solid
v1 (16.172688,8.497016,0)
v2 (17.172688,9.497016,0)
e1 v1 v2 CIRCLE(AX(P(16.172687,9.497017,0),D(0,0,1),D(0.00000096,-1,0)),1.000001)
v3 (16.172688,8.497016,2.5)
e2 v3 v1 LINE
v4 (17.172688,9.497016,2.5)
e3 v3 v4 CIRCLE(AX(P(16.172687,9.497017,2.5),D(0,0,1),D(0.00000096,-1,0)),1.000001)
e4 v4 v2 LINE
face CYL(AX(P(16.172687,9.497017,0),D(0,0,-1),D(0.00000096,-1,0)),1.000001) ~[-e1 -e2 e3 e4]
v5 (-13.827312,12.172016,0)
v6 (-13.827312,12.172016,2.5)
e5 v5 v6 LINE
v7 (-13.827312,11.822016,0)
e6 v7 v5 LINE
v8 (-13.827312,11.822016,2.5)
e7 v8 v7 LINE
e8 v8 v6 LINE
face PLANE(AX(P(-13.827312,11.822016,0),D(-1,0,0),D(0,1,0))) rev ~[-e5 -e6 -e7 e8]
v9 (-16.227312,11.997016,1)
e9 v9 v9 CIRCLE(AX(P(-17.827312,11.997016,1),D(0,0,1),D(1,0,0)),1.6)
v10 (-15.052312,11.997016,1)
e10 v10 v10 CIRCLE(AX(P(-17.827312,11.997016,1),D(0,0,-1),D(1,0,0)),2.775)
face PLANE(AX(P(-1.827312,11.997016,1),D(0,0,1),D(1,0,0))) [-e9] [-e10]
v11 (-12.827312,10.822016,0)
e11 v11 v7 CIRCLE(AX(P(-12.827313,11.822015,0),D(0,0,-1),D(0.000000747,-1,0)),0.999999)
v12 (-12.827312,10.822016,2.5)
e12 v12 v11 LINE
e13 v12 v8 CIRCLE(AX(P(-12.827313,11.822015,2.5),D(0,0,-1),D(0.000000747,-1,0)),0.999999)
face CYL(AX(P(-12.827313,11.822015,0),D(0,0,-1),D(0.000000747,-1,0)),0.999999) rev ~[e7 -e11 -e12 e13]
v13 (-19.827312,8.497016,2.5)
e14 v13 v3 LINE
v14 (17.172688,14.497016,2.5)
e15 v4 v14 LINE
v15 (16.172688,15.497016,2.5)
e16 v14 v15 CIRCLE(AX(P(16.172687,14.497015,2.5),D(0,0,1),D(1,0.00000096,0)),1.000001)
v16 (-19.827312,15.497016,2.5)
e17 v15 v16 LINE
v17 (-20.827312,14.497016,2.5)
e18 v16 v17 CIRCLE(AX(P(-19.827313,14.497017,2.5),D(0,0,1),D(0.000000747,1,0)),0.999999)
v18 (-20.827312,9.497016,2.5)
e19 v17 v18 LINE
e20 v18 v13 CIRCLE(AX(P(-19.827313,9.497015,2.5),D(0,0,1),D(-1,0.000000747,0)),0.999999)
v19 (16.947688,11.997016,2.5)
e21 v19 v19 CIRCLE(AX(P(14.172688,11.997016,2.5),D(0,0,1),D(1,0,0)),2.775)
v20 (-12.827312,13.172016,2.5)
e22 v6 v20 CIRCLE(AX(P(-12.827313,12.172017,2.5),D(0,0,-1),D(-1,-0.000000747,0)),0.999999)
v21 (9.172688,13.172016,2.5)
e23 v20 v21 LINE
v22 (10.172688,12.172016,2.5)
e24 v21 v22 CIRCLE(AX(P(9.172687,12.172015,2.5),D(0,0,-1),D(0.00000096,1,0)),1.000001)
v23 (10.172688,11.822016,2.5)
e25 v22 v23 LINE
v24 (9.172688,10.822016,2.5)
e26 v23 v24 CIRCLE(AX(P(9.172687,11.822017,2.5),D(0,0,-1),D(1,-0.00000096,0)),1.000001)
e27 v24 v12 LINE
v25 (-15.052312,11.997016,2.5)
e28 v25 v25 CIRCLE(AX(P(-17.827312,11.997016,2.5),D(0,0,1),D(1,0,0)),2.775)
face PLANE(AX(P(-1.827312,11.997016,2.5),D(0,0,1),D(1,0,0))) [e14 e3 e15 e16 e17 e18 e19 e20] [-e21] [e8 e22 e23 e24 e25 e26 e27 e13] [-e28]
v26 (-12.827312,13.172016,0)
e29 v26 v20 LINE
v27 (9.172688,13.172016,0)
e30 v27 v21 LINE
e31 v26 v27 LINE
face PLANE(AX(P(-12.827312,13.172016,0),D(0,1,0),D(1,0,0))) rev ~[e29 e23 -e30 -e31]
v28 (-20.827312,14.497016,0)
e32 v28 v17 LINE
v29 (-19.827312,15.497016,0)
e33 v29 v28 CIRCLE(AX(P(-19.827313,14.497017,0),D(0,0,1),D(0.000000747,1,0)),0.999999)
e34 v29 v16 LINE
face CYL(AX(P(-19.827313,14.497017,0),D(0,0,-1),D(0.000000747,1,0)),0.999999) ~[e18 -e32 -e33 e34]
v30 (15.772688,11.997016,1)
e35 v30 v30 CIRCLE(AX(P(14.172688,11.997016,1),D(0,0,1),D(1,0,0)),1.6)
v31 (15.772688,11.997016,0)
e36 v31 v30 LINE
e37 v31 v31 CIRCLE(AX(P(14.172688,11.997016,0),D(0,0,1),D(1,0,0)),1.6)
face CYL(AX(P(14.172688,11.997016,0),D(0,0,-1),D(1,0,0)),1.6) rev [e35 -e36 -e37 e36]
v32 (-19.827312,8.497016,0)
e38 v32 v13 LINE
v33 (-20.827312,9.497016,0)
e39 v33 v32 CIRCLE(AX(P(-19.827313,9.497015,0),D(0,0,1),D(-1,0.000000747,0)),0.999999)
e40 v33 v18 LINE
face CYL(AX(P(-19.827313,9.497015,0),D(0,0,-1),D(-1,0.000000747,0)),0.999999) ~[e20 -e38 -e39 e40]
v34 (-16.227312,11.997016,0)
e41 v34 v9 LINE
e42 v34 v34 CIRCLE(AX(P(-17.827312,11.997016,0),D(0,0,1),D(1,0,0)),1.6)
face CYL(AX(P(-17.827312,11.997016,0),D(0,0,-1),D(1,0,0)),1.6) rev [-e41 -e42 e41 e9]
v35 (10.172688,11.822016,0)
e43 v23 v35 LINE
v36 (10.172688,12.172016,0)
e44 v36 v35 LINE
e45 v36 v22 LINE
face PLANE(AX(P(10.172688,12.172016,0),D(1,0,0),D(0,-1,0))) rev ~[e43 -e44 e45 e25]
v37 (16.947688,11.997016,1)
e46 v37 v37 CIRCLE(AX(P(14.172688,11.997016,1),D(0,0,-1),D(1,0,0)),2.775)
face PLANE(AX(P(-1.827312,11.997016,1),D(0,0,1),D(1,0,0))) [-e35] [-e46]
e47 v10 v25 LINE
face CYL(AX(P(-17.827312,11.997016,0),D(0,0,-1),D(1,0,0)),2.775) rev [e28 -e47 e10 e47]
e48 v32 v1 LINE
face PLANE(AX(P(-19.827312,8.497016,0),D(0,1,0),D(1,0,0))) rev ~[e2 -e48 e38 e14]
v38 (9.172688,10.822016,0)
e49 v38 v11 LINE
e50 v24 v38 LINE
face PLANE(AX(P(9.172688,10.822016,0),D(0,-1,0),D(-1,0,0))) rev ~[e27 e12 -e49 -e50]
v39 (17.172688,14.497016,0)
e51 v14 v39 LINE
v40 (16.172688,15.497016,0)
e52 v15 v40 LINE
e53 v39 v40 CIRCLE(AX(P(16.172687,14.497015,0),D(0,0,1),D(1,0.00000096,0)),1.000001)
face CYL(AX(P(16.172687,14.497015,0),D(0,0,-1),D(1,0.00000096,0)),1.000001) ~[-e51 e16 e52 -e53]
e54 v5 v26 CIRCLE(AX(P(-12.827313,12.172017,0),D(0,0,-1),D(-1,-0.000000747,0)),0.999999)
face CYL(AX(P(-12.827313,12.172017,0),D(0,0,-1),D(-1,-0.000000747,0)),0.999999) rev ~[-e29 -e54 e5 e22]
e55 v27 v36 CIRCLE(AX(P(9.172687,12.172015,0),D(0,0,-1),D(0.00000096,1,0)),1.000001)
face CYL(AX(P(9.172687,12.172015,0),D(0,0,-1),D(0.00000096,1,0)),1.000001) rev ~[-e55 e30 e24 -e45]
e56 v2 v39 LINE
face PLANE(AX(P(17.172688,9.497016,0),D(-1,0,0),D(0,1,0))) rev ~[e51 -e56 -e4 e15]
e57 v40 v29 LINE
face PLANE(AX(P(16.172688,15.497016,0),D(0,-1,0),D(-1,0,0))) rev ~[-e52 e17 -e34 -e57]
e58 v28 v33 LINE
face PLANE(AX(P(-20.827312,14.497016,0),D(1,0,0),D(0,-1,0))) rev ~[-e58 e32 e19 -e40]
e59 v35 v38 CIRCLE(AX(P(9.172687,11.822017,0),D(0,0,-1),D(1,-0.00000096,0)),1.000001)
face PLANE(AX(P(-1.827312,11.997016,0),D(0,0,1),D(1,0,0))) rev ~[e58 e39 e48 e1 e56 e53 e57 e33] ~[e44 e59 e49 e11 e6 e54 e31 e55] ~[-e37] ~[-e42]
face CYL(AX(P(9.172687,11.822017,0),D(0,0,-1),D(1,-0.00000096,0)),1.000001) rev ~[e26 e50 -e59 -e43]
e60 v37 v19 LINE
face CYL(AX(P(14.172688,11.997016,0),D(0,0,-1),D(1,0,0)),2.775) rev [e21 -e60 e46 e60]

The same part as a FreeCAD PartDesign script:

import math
import FreeCAD as App
import Part
import Sketcher

V = App.Vector

doc = App.newDocument("Part")
params = doc.addObject("Spreadsheet::Sheet", "Params")
for row, (alias, value) in enumerate([
    ("sketch1_radius", "0.999999 mm"),
    ("sketch1_diameter", "3.2 mm"),
    ("sketch1_width", "36 mm"),
    ("sketch1_width2", "22 mm"),
    ("sketch1_height", "5 mm"),
    ("pad1_length", "1 mm"),
    ("sketch2_radius", "0.999999 mm"),
    ("sketch2_diameter", "5.55 mm"),
    ("sketch2_width", "36 mm"),
    ("sketch2_width2", "22 mm"),
    ("sketch2_height", "5 mm"),
    ("pad2_length", "2.5 mm"),
], start=1):
    params.set(f"A{row}", alias)
    params.set(f"B{row}", "=" + value)
    params.setAlias(f"B{row}", alias)

body = doc.addObject("PartDesign::Body", "Body")

# Sketch on XY plane
sketch1 = doc.addObject("Sketcher::SketchObject", "Sketch")
body.addObject(sketch1)
sketch1.AttachmentSupport = (doc.XY_Plane, [""])
sketch1.MapMode = "FlatFace"
sketch1.addGeometry(Part.LineSegment(V(16.17, 15.5, 0), V(-19.83, 15.5, 0)), False)
sketch1.addGeometry(Part.ArcOfCircle(Part.Circle(V(-19.83, 14.5, 0), V(0, 0, 1), 1), math.radians(90), math.radians(180)), False)
sketch1.addGeometry(Part.LineSegment(V(-20.83, 14.5, 0), V(-20.83, 9.5, 0)), False)
sketch1.addGeometry(Part.ArcOfCircle(Part.Circle(V(-19.83, 9.5, 0), V(0, 0, 1), 1), math.radians(180), math.radians(270)), False)
sketch1.addGeometry(Part.LineSegment(V(-19.83, 8.5, 0), V(16.17, 8.5, 0)), False)
sketch1.addGeometry(Part.ArcOfCircle(Part.Circle(V(16.17, 9.5, 0), V(0, 0, 1), 1), math.radians(-90), math.radians(0)), False)
sketch1.addGeometry(Part.LineSegment(V(17.17, 9.5, 0), V(17.17, 14.5, 0)), False)
sketch1.addGeometry(Part.ArcOfCircle(Part.Circle(V(16.17, 14.5, 0), V(0, 0, 1), 1), math.radians(0), math.radians(90)), False)
sketch1.addGeometry(Part.LineSegment(V(-13.83, 11.82, 0), V(-13.83, 12.17, 0)), False)
sketch1.addGeometry(Part.ArcOfCircle(Part.Circle(V(-12.83, 12.17, 0), V(0, 0, 1), 1), math.radians(90), math.radians(180)), False)
sketch1.addGeometry(Part.LineSegment(V(-12.83, 13.17, 0), V(9.17, 13.17, 0)), False)
sketch1.addGeometry(Part.ArcOfCircle(Part.Circle(V(9.17, 12.17, 0), V(0, 0, 1), 1), math.radians(0), math.radians(90)), False)
sketch1.addGeometry(Part.LineSegment(V(10.17, 12.17, 0), V(10.17, 11.82, 0)), False)
sketch1.addGeometry(Part.ArcOfCircle(Part.Circle(V(9.17, 11.82, 0), V(0, 0, 1), 1), math.radians(-90), math.radians(0)), False)
sketch1.addGeometry(Part.LineSegment(V(9.17, 10.82, 0), V(-12.83, 10.82, 0)), False)
sketch1.addGeometry(Part.ArcOfCircle(Part.Circle(V(-12.83, 11.82, 0), V(0, 0, 1), 1), math.radians(180), math.radians(270)), False)
sketch1.addGeometry(Part.Circle(V(-17.83, 12, 0), V(0, 0, 1), 1.6), False)
sketch1.addGeometry(Part.Circle(V(14.17, 12, 0), V(0, 0, 1), 1.6), False)
sketch1.addConstraint(Sketcher.Constraint("Tangent", 0, 2, 1, 1))
sketch1.addConstraint(Sketcher.Constraint("Tangent", 1, 2, 2, 1))
sketch1.addConstraint(Sketcher.Constraint("Tangent", 2, 2, 3, 1))
sketch1.addConstraint(Sketcher.Constraint("Tangent", 3, 2, 4, 1))
sketch1.addConstraint(Sketcher.Constraint("Tangent", 4, 2, 5, 1))
sketch1.addConstraint(Sketcher.Constraint("Tangent", 5, 2, 6, 1))
sketch1.addConstraint(Sketcher.Constraint("Tangent", 6, 2, 7, 1))
sketch1.addConstraint(Sketcher.Constraint("Tangent", 7, 2, 0, 1))
sketch1.addConstraint(Sketcher.Constraint("Tangent", 8, 2, 9, 2))
sketch1.addConstraint(Sketcher.Constraint("Tangent", 9, 1, 10, 1))
sketch1.addConstraint(Sketcher.Constraint("Tangent", 10, 2, 11, 2))
sketch1.addConstraint(Sketcher.Constraint("Tangent", 11, 1, 12, 1))
sketch1.addConstraint(Sketcher.Constraint("Tangent", 12, 2, 13, 2))
sketch1.addConstraint(Sketcher.Constraint("Tangent", 13, 1, 14, 1))
sketch1.addConstraint(Sketcher.Constraint("Tangent", 14, 2, 15, 2))
sketch1.addConstraint(Sketcher.Constraint("Tangent", 15, 1, 8, 1))
sketch1.addConstraint(Sketcher.Constraint("Horizontal", 0))
sketch1.addConstraint(Sketcher.Constraint("Vertical", 2))
sketch1.addConstraint(Sketcher.Constraint("Horizontal", 4))
sketch1.addConstraint(Sketcher.Constraint("Vertical", 6))
sketch1.addConstraint(Sketcher.Constraint("Vertical", 8))
sketch1.addConstraint(Sketcher.Constraint("Horizontal", 10))
sketch1.addConstraint(Sketcher.Constraint("Vertical", 12))
sketch1.addConstraint(Sketcher.Constraint("Horizontal", 14))
sketch1.addConstraint(Sketcher.Constraint("Equal", 1, 3))
sketch1.addConstraint(Sketcher.Constraint("Equal", 3, 5))
sketch1.addConstraint(Sketcher.Constraint("Equal", 5, 7))
sketch1.addConstraint(Sketcher.Constraint("Equal", 7, 9))
sketch1.addConstraint(Sketcher.Constraint("Equal", 9, 11))
sketch1.addConstraint(Sketcher.Constraint("Equal", 11, 13))
sketch1.addConstraint(Sketcher.Constraint("Equal", 13, 15))
sketch1.addConstraint(Sketcher.Constraint("Equal", 16, 17))
sketch1.addConstraint(Sketcher.Constraint("Horizontal", 16, 3, 17, 3))
sketch1.addConstraint(Sketcher.Constraint("Radius", 1, 0.999999))
sketch1.addConstraint(Sketcher.Constraint("Diameter", 16, 3.2))
sketch1.addConstraint(Sketcher.Constraint("DistanceX", 0, 2, 0, 1, 36.0))
sketch1.addConstraint(Sketcher.Constraint("DistanceX", 10, 1, 10, 2, 22.0))
sketch1.addConstraint(Sketcher.Constraint("DistanceY", 2, 2, 2, 1, 5.0))
sketch1.addConstraint(Sketcher.Constraint("DistanceX", 1, 3, 9, 3, 7.0))
sketch1.addConstraint(Sketcher.Constraint("DistanceX", 1, 3, 16, 3, 2.000001))
sketch1.addConstraint(Sketcher.Constraint("DistanceX", 17, 3, 5, 3, 1.999999))
sketch1.addConstraint(Sketcher.Constraint("DistanceY", 8, 1, 8, 2, 0.35))
sketch1.addConstraint(Sketcher.Constraint("DistanceY", 16, 3, 1, 3, 2.500001))
sketch1.addConstraint(Sketcher.Constraint("DistanceY", 9, 3, 1, 3, 2.325))
sketch1.addConstraint(Sketcher.Constraint("DistanceX", 16, 3, -1, 1, 17.827312))
sketch1.addConstraint(Sketcher.Constraint("DistanceY", -1, 1, 1, 3, 14.497017))
sketch1.setExpression("Constraints[33]", "Params.sketch1_radius")
sketch1.setExpression("Constraints[34]", "Params.sketch1_diameter")
sketch1.setExpression("Constraints[35]", "Params.sketch1_width")
sketch1.setExpression("Constraints[36]", "Params.sketch1_width2")
sketch1.setExpression("Constraints[37]", "Params.sketch1_height")
pad1 = doc.addObject("PartDesign::Pad", "Pad")
body.addObject(pad1)
pad1.Profile = sketch1
pad1.setExpression("Length", "Params.pad1_length")

# Sketch on XY plane
sketch2 = doc.addObject("Sketcher::SketchObject", "Sketch001")
body.addObject(sketch2)
sketch2.AttachmentSupport = (doc.XY_Plane, [""])
sketch2.MapMode = "FlatFace"
sketch2.addGeometry(Part.LineSegment(V(16.17, 15.5, 0), V(-19.83, 15.5, 0)), False)
sketch2.addGeometry(Part.ArcOfCircle(Part.Circle(V(-19.83, 14.5, 0), V(0, 0, 1), 1), math.radians(90), math.radians(180)), False)
sketch2.addGeometry(Part.LineSegment(V(-20.83, 14.5, 0), V(-20.83, 9.5, 0)), False)
sketch2.addGeometry(Part.ArcOfCircle(Part.Circle(V(-19.83, 9.5, 0), V(0, 0, 1), 1), math.radians(180), math.radians(270)), False)
sketch2.addGeometry(Part.LineSegment(V(-19.83, 8.5, 0), V(16.17, 8.5, 0)), False)
sketch2.addGeometry(Part.ArcOfCircle(Part.Circle(V(16.17, 9.5, 0), V(0, 0, 1), 1), math.radians(-90), math.radians(0)), False)
sketch2.addGeometry(Part.LineSegment(V(17.17, 9.5, 0), V(17.17, 14.5, 0)), False)
sketch2.addGeometry(Part.ArcOfCircle(Part.Circle(V(16.17, 14.5, 0), V(0, 0, 1), 1), math.radians(0), math.radians(90)), False)
sketch2.addGeometry(Part.Circle(V(-17.83, 12, 0), V(0, 0, 1), 2.77), False)
sketch2.addGeometry(Part.LineSegment(V(-13.83, 11.82, 0), V(-13.83, 12.17, 0)), False)
sketch2.addGeometry(Part.ArcOfCircle(Part.Circle(V(-12.83, 12.17, 0), V(0, 0, 1), 1), math.radians(90), math.radians(180)), False)
sketch2.addGeometry(Part.LineSegment(V(-12.83, 13.17, 0), V(9.17, 13.17, 0)), False)
sketch2.addGeometry(Part.ArcOfCircle(Part.Circle(V(9.17, 12.17, 0), V(0, 0, 1), 1), math.radians(0), math.radians(90)), False)
sketch2.addGeometry(Part.LineSegment(V(10.17, 12.17, 0), V(10.17, 11.82, 0)), False)
sketch2.addGeometry(Part.ArcOfCircle(Part.Circle(V(9.17, 11.82, 0), V(0, 0, 1), 1), math.radians(-90), math.radians(0)), False)
sketch2.addGeometry(Part.LineSegment(V(9.17, 10.82, 0), V(-12.83, 10.82, 0)), False)
sketch2.addGeometry(Part.ArcOfCircle(Part.Circle(V(-12.83, 11.82, 0), V(0, 0, 1), 1), math.radians(180), math.radians(270)), False)
sketch2.addGeometry(Part.Circle(V(14.17, 12, 0), V(0, 0, 1), 2.77), False)
sketch2.addConstraint(Sketcher.Constraint("Tangent", 0, 2, 1, 1))
sketch2.addConstraint(Sketcher.Constraint("Tangent", 1, 2, 2, 1))
sketch2.addConstraint(Sketcher.Constraint("Tangent", 2, 2, 3, 1))
sketch2.addConstraint(Sketcher.Constraint("Tangent", 3, 2, 4, 1))
sketch2.addConstraint(Sketcher.Constraint("Tangent", 4, 2, 5, 1))
sketch2.addConstraint(Sketcher.Constraint("Tangent", 5, 2, 6, 1))
sketch2.addConstraint(Sketcher.Constraint("Tangent", 6, 2, 7, 1))
sketch2.addConstraint(Sketcher.Constraint("Tangent", 7, 2, 0, 1))
sketch2.addConstraint(Sketcher.Constraint("Tangent", 9, 2, 10, 2))
sketch2.addConstraint(Sketcher.Constraint("Tangent", 10, 1, 11, 1))
sketch2.addConstraint(Sketcher.Constraint("Tangent", 11, 2, 12, 2))
sketch2.addConstraint(Sketcher.Constraint("Tangent", 12, 1, 13, 1))
sketch2.addConstraint(Sketcher.Constraint("Tangent", 13, 2, 14, 2))
sketch2.addConstraint(Sketcher.Constraint("Tangent", 14, 1, 15, 1))
sketch2.addConstraint(Sketcher.Constraint("Tangent", 15, 2, 16, 2))
sketch2.addConstraint(Sketcher.Constraint("Tangent", 16, 1, 9, 1))
sketch2.addConstraint(Sketcher.Constraint("Horizontal", 0))
sketch2.addConstraint(Sketcher.Constraint("Vertical", 2))
sketch2.addConstraint(Sketcher.Constraint("Horizontal", 4))
sketch2.addConstraint(Sketcher.Constraint("Vertical", 6))
sketch2.addConstraint(Sketcher.Constraint("Vertical", 9))
sketch2.addConstraint(Sketcher.Constraint("Horizontal", 11))
sketch2.addConstraint(Sketcher.Constraint("Vertical", 13))
sketch2.addConstraint(Sketcher.Constraint("Horizontal", 15))
sketch2.addConstraint(Sketcher.Constraint("Equal", 1, 3))
sketch2.addConstraint(Sketcher.Constraint("Equal", 3, 5))
sketch2.addConstraint(Sketcher.Constraint("Equal", 5, 7))
sketch2.addConstraint(Sketcher.Constraint("Equal", 7, 10))
sketch2.addConstraint(Sketcher.Constraint("Equal", 10, 12))
sketch2.addConstraint(Sketcher.Constraint("Equal", 12, 14))
sketch2.addConstraint(Sketcher.Constraint("Equal", 14, 16))
sketch2.addConstraint(Sketcher.Constraint("Equal", 8, 17))
sketch2.addConstraint(Sketcher.Constraint("Horizontal", 8, 3, 17, 3))
sketch2.addConstraint(Sketcher.Constraint("Radius", 1, 0.999999))
sketch2.addConstraint(Sketcher.Constraint("Diameter", 8, 5.55))
sketch2.addConstraint(Sketcher.Constraint("DistanceX", 0, 2, 0, 1, 36.0))
sketch2.addConstraint(Sketcher.Constraint("DistanceX", 11, 1, 11, 2, 22.0))
sketch2.addConstraint(Sketcher.Constraint("DistanceY", 2, 2, 2, 1, 5.0))
sketch2.addConstraint(Sketcher.Constraint("DistanceX", 1, 3, 8, 3, 2.000001))
sketch2.addConstraint(Sketcher.Constraint("DistanceX", 8, 3, 10, 3, 4.999999))
sketch2.addConstraint(Sketcher.Constraint("DistanceX", 17, 3, 5, 3, 1.999999))
sketch2.addConstraint(Sketcher.Constraint("DistanceY", 9, 1, 9, 2, 0.35))
sketch2.addConstraint(Sketcher.Constraint("DistanceY", 8, 3, 1, 3, 2.500001))
sketch2.addConstraint(Sketcher.Constraint("DistanceY", 8, 3, 10, 3, 0.175001))
sketch2.addConstraint(Sketcher.Constraint("DistanceX", 8, 3, -1, 1, 17.827312))
sketch2.addConstraint(Sketcher.Constraint("DistanceY", -1, 1, 1, 3, 14.497017))
sketch2.setExpression("Constraints[33]", "Params.sketch2_radius")
sketch2.setExpression("Constraints[34]", "Params.sketch2_diameter")
sketch2.setExpression("Constraints[35]", "Params.sketch2_width")
sketch2.setExpression("Constraints[36]", "Params.sketch2_width2")
sketch2.setExpression("Constraints[37]", "Params.sketch2_height")
pad2 = doc.addObject("PartDesign::Pad", "Pad001")
body.addObject(pad2)
pad2.Profile = sketch2
pad2.setExpression("Length", "Params.pad2_length")

doc.recompute()
